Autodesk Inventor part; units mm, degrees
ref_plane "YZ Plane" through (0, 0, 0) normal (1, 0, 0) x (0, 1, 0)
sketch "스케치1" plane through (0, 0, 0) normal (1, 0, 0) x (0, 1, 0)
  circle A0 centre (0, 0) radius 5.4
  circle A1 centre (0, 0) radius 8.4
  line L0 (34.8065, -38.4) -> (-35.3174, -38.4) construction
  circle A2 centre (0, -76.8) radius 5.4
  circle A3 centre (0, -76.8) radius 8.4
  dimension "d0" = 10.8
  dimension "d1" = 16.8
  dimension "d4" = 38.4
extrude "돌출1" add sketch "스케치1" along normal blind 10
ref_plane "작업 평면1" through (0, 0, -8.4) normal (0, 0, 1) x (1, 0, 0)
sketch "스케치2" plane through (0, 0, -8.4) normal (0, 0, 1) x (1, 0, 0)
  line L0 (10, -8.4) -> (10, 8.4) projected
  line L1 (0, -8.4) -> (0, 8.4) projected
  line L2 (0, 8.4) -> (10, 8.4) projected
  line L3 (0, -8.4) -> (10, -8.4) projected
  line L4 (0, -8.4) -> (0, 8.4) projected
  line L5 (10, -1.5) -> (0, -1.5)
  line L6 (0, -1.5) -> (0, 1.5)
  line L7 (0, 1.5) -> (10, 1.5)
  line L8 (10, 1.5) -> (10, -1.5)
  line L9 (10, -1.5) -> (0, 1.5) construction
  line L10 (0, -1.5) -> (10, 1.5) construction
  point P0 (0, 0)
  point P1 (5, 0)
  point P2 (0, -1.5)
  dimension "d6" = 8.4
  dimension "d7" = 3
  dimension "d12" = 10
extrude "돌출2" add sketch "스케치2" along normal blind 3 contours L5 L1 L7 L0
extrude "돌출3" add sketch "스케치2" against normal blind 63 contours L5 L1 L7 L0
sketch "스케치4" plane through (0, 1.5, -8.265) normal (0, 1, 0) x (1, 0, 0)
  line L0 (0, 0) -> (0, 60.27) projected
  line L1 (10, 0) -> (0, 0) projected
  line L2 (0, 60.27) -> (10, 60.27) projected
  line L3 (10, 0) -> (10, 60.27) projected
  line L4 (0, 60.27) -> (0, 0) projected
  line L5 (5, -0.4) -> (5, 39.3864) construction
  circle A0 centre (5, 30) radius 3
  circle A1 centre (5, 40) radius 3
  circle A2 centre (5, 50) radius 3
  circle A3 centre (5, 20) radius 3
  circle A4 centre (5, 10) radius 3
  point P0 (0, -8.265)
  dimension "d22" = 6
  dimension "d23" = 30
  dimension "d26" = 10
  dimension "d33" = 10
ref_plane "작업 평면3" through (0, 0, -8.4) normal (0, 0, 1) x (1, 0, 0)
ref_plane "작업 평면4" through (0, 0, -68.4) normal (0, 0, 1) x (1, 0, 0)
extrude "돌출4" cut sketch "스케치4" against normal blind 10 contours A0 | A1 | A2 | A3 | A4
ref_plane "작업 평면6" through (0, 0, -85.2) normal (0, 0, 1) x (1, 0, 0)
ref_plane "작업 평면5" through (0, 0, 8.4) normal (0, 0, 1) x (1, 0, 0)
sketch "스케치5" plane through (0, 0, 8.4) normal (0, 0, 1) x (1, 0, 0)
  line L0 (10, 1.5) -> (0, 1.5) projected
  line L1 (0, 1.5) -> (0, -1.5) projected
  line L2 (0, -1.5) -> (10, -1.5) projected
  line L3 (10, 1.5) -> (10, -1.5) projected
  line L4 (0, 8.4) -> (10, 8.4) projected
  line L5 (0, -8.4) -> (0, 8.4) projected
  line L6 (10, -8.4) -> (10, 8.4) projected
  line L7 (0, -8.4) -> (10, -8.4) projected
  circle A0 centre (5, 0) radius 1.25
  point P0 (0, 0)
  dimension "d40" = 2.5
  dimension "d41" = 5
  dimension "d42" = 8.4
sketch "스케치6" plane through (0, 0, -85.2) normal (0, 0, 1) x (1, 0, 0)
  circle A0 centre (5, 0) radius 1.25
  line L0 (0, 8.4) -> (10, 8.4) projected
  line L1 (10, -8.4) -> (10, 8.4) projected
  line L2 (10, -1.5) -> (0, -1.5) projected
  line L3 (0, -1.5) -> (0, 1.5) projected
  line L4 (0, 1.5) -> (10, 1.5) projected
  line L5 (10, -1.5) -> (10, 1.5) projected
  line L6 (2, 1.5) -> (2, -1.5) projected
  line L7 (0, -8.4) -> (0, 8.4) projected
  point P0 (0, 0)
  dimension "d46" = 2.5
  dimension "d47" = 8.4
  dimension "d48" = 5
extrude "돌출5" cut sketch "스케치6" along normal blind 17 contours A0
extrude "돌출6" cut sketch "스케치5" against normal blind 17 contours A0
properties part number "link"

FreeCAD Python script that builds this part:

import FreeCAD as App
import Part
import Sketcher
from FreeCAD import Vector

doc = App.newDocument("Part")
body = doc.addObject("PartDesign::Body", "Body")
body.AllowCompound = True

# Sketch on YZ plane
sketch1 = body.newObject("Sketcher::SketchObject", "Sketch")
sketch1.AttachmentSupport = (doc.getObject("YZ_Plane"), [""])
sketch1.MapMode = "FlatFace"
sketch1.addGeometry([
    Part.Circle(Vector(0, 0, 0), Vector(0, 0, 1), 8),
    Part.Circle(Vector(0, 0, 0), Vector(0, 0, 1), 5),
    Part.Circle(Vector(0, -77, 0), Vector(0, 0, 1), 8),
    Part.Circle(Vector(0, -77, 0), Vector(0, 0, 1), 5),
], False)
sketch1.addConstraint([
    Sketcher.Constraint("Coincident", 0, 3, -1, 1),
    Sketcher.Constraint("Coincident", 1, 3, -1, 1),
    Sketcher.Constraint("Coincident", 3, 3, 2, 3),
    Sketcher.Constraint("Equal", 0, 2),
    Sketcher.Constraint("Equal", 1, 3),
    Sketcher.Constraint("PointOnObject", 2, 3, -2),
    Sketcher.Constraint("Diameter", 0, 16.8),
    Sketcher.Constraint("Diameter", 1, 10.8),
    Sketcher.Constraint("DistanceY", 2, 3, -1, 1, 76.8),
])
pad1 = body.newObject("PartDesign::Pad", "Pad")
pad1.Profile = sketch1
pad1.Length = 10

# Sketch on XY plane
sketch2 = body.newObject("Sketcher::SketchObject", "Sketch001")
sketch2.AttachmentSupport = (doc.getObject("XY_Plane"), [""])
sketch2.MapMode = "FlatFace"
sketch2.AttachmentOffset = App.Placement(Vector(0, 0, -8.4), App.Rotation())
sketch2.addGeometry([
    Part.LineSegment(Vector(0, -1.5, 0), Vector(10, -1.5, 0)),
    Part.LineSegment(Vector(10, -1.5, 0), Vector(10, 1.5, 0)),
    Part.LineSegment(Vector(10, 1.5, 0), Vector(0, 1.5, 0)),
    Part.LineSegment(Vector(0, 1.5, 0), Vector(0, -1.5, 0)),
], False)
sketch2.addConstraint([
    Sketcher.Constraint("Coincident", 0, 2, 1, 1),
    Sketcher.Constraint("Coincident", 1, 2, 2, 1),
    Sketcher.Constraint("Coincident", 2, 2, 3, 1),
    Sketcher.Constraint("Coincident", 3, 2, 0, 1),
    Sketcher.Constraint("Horizontal", 0),
    Sketcher.Constraint("Vertical", 1),
    Sketcher.Constraint("Horizontal", 2),
    Sketcher.Constraint("Vertical", 3),
    Sketcher.Constraint("Symmetric", 2, 2, 3, 2, -1, 1),
    Sketcher.Constraint("DistanceX", 0, 1, 0, 2, 10.0),
    Sketcher.Constraint("DistanceY", 1, 1, 1, 2, 3.0),
])
pad2 = body.newObject("PartDesign::Pad", "Pad001")
pad2.Profile = sketch2
pad2.Length = 3

# Sketch on XY plane
sketch3 = body.newObject("Sketcher::SketchObject", "Sketch002")
sketch3.AttachmentSupport = (doc.getObject("XY_Plane"), [""])
sketch3.MapMode = "FlatFace"
sketch3.AttachmentOffset = App.Placement(Vector(0, 0, -8.4), App.Rotation())
sketch3.addGeometry([
    Part.LineSegment(Vector(0, -1.5, 0), Vector(10, -1.5, 0)),
    Part.LineSegment(Vector(10, -1.5, 0), Vector(10, 1.5, 0)),
    Part.LineSegment(Vector(10, 1.5, 0), Vector(0, 1.5, 0)),
    Part.LineSegment(Vector(0, 1.5, 0), Vector(0, -1.5, 0)),
], False)
sketch3.addConstraint([
    Sketcher.Constraint("Coincident", 0, 2, 1, 1),
    Sketcher.Constraint("Coincident", 1, 2, 2, 1),
    Sketcher.Constraint("Coincident", 2, 2, 3, 1),
    Sketcher.Constraint("Coincident", 3, 2, 0, 1),
    Sketcher.Constraint("Horizontal", 0),
    Sketcher.Constraint("Vertical", 1),
    Sketcher.Constraint("Horizontal", 2),
    Sketcher.Constraint("Vertical", 3),
    Sketcher.Constraint("Symmetric", 2, 2, 3, 2, -1, 1),
    Sketcher.Constraint("DistanceX", 0, 1, 0, 2, 10.0),
    Sketcher.Constraint("DistanceY", 1, 1, 1, 2, 3.0),
])
pad3 = body.newObject("PartDesign::Pad", "Pad002")
pad3.Profile = sketch3
pad3.Length = 63
pad3.Reversed = True

# Sketch on XZ plane
sketch4 = body.newObject("Sketcher::SketchObject", "Sketch003")
sketch4.AttachmentSupport = (doc.getObject("XZ_Plane"), [""])
sketch4.MapMode = "FlatFace"
sketch4.AttachmentOffset = App.Placement(Vector(0, 0, -1.5), App.Rotation())
sketch4.addGeometry([
    Part.Circle(Vector(5, -38.3, 0), Vector(0, 0, 1), 3),  # 0
    Part.Circle(Vector(5, -48.3, 0), Vector(0, 0, 1), 3),  # 1
    Part.Circle(Vector(5, -58.3, 0), Vector(0, 0, 1), 3),  # 2
    Part.Circle(Vector(5, -28.3, 0), Vector(0, 0, 1), 3),  # 3
    Part.Circle(Vector(5, -18.3, 0), Vector(0, 0, 1), 3),  # 4
], False)
sketch4.addConstraint([
    Sketcher.Constraint("Equal", 0, 1),
    Sketcher.Constraint("Equal", 1, 2),
    Sketcher.Constraint("Equal", 2, 3),
    Sketcher.Constraint("Equal", 3, 4),
    Sketcher.Constraint("Vertical", 0, 3, 1, 3),
    Sketcher.Constraint("Vertical", 1, 3, 2, 3),
    Sketcher.Constraint("Vertical", 2, 3, 3, 3),
    Sketcher.Constraint("Vertical", 3, 3, 4, 3),
    Sketcher.Constraint("Diameter", 0, 6.0),
    Sketcher.Constraint("DistanceY", 1, 3, 0, 3, 10.0),
    Sketcher.Constraint("DistanceY", 2, 3, 1, 3, 10.0),
    Sketcher.Constraint("DistanceY", 0, 3, 3, 3, 10.0),
    Sketcher.Constraint("DistanceY", 3, 3, 4, 3, 10.0),
    Sketcher.Constraint("DistanceX", -1, 1, 0, 3, 5.0),
    Sketcher.Constraint("DistanceY", 0, 3, -1, 1, 38.265),
])
pocket1 = body.newObject("PartDesign::Pocket", "Pocket")
pocket1.Profile = sketch4
pocket1.Length = 10
pocket1.Reversed = True

# Sketch on XY plane
sketch5 = body.newObject("Sketcher::SketchObject", "Sketch004")
sketch5.AttachmentSupport = (doc.getObject("XY_Plane"), [""])
sketch5.MapMode = "FlatFace"
sketch5.AttachmentOffset = App.Placement(Vector(0, 0, -85.2), App.Rotation())
sketch5.addGeometry(Part.Circle(Vector(5, 0, 0), Vector(0, 0, 1), 1.2), False)
sketch5.addConstraint([
    Sketcher.Constraint("PointOnObject", 0, 3, -1),
    Sketcher.Constraint("Diameter", 0, 2.5),
    Sketcher.Constraint("DistanceX", -1, 1, 0, 3, 5.0),
])
pocket2 = body.newObject("PartDesign::Pocket", "Pocket001")
pocket2.Profile = sketch5
pocket2.Length = 17
pocket2.Reversed = True

# Sketch on XY plane
sketch6 = body.newObject("Sketcher::SketchObject", "Sketch005")
sketch6.AttachmentSupport = (doc.getObject("XY_Plane"), [""])
sketch6.MapMode = "FlatFace"
sketch6.AttachmentOffset = App.Placement(Vector(0, 0, 8.4), App.Rotation())
sketch6.addGeometry(Part.Circle(Vector(5, 0, 0), Vector(0, 0, 1), 1.2), False)
sketch6.addConstraint([
    Sketcher.Constraint("PointOnObject", 0, 3, -1),
    Sketcher.Constraint("Diameter", 0, 2.5),
    Sketcher.Constraint("DistanceX", -1, 1, 0, 3, 5.0),
])
pocket3 = body.newObject("PartDesign::Pocket", "Pocket002")
pocket3.Profile = sketch6
pocket3.Length = 17

doc.recompute()
